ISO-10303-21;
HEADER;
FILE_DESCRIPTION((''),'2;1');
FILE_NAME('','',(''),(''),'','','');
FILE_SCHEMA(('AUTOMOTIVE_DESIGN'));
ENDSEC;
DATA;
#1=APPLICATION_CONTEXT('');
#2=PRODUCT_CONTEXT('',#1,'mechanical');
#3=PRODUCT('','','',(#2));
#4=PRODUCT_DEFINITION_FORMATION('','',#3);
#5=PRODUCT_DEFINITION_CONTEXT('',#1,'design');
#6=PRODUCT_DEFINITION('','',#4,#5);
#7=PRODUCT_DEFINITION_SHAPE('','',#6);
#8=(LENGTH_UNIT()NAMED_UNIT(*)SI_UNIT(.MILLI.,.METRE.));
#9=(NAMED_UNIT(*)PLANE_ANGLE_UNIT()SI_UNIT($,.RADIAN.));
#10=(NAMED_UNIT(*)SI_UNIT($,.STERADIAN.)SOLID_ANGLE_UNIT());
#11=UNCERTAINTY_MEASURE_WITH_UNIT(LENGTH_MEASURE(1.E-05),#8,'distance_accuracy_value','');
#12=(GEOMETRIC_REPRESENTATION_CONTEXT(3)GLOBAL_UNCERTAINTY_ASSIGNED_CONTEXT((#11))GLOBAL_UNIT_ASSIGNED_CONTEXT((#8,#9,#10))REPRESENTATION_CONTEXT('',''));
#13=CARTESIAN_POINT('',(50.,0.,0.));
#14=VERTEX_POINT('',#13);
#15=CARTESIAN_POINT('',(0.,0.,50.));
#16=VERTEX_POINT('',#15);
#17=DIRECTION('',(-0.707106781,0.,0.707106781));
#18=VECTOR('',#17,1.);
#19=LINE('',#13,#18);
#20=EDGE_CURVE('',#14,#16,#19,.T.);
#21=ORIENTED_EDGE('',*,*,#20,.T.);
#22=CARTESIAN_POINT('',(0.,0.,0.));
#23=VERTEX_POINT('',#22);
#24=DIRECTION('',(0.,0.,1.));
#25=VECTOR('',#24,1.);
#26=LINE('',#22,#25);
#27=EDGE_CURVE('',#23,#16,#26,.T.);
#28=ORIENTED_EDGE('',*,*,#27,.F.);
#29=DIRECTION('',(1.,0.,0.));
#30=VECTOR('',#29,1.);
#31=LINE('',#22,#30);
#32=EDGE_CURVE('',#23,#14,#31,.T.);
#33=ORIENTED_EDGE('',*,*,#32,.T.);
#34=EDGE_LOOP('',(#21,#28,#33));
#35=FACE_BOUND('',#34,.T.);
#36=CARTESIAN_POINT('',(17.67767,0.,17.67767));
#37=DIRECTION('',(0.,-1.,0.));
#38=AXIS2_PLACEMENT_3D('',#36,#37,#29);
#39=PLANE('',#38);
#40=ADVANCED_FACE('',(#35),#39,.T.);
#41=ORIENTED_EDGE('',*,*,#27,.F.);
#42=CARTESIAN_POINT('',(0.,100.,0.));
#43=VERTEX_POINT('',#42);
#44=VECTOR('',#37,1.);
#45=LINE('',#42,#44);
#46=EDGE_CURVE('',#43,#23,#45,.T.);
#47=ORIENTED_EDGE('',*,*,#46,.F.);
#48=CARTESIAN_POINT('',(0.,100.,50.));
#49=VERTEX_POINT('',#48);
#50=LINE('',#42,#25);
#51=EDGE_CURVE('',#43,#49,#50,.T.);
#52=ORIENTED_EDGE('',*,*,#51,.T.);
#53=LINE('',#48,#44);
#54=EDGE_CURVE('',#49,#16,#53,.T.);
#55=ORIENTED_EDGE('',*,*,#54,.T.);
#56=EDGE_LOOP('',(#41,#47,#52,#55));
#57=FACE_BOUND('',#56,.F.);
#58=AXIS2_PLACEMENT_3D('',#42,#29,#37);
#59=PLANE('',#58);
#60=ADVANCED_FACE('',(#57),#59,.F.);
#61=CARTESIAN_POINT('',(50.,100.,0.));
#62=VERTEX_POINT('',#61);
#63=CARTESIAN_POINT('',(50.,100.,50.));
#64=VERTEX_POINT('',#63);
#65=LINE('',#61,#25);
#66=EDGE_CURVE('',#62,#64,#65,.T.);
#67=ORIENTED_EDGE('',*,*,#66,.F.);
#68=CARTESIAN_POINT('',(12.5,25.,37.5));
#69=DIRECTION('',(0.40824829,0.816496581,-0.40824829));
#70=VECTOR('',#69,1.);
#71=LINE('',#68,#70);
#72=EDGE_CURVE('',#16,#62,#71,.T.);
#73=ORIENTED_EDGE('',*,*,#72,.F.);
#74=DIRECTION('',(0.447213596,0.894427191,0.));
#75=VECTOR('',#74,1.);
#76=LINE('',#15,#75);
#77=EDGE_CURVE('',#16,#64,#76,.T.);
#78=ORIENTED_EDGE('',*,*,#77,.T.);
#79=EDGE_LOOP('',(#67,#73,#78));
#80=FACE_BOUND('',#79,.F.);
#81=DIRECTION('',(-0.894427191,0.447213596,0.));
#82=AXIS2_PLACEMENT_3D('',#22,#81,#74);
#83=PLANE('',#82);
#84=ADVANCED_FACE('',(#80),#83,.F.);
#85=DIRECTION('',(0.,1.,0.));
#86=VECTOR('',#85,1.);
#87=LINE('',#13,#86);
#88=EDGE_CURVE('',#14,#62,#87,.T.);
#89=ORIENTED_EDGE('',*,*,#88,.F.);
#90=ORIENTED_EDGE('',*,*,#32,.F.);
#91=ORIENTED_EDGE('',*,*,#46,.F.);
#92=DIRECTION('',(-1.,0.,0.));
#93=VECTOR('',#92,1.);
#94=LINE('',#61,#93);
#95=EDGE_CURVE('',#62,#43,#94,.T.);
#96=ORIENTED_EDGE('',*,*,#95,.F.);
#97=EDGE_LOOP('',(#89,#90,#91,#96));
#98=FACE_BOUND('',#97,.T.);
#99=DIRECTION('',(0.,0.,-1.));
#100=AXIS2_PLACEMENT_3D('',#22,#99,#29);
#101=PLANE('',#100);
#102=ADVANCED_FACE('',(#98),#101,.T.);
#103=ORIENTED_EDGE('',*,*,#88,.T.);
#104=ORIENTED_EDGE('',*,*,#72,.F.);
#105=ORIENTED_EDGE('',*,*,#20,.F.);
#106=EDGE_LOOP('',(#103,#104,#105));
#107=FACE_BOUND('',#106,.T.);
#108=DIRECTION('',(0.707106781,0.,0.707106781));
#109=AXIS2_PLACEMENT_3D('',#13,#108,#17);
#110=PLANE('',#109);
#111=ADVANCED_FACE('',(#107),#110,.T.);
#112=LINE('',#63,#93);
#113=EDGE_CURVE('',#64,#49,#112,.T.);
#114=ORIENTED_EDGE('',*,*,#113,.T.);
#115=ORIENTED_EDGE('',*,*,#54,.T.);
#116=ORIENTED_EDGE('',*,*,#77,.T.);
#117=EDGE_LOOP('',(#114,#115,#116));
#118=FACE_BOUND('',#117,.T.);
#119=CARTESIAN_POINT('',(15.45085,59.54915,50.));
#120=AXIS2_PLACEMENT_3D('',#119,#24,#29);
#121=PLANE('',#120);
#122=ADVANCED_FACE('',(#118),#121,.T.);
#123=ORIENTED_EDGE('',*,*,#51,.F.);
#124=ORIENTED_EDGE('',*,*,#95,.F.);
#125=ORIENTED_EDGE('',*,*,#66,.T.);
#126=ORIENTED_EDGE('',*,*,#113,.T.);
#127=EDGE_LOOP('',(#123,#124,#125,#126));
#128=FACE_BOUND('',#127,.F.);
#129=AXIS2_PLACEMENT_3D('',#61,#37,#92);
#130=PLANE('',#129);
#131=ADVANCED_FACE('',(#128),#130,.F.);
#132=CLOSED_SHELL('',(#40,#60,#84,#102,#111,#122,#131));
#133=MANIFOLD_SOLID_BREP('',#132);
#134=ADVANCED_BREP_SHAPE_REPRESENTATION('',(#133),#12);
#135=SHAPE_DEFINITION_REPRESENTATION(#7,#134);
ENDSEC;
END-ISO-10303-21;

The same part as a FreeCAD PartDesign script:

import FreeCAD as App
import Part
import Sketcher
from FreeCAD import Vector
Q = App.Units.Quantity

doc = App.newDocument("Part")
body = doc.addObject("PartDesign::Body", "Body")

sketch1 = body.newObject("Sketcher::SketchObject", "Sketch")
sketch1.AttachmentSupport = (doc.getObject("XY_Plane"), [""])
sketch1.MapMode = "FlatFace"
sketch1.addGeometry([
    Part.LineSegment(Vector(0, 100, 0), Vector(0, 0, 0)),
    Part.LineSegment(Vector(0, 0, 0), Vector(50, 100, 0)),
    Part.LineSegment(Vector(50, 100, 0), Vector(0, 100, 0)),
], False)
sketch1.addConstraint([
    Sketcher.Constraint("Coincident", 0, 2, 1, 1),
    Sketcher.Constraint("Coincident", 1, 2, 2, 1),
    Sketcher.Constraint("Coincident", 2, 2, 0, 1),
    Sketcher.Constraint("Vertical", 0),
    Sketcher.Constraint("Horizontal", 2),
    Sketcher.Constraint("Coincident", 0, 2, -1, 1),
    Sketcher.Constraint("DistanceX", 2, 2, 2, 1, Q("50 mm")),
    Sketcher.Constraint("DistanceY", 0, 2, 0, 1, Q("100 mm")),
])
pad1 = body.newObject("PartDesign::Pad", "Pad")
pad1.Profile = sketch1
pad1.Length = 50

sketch2 = body.newObject("Sketcher::SketchObject", "Sketch001")
sketch2.AttachmentSupport = (doc.getObject("XZ_Plane"), [""])
sketch2.MapMode = "FlatFace"
sketch2.addGeometry([
    Part.LineSegment(Vector(50, 0, 0), Vector(0, 50, 0)),
    Part.LineSegment(Vector(0, 50, 0), Vector(0, 0, 0)),
    Part.LineSegment(Vector(0, 0, 0), Vector(50, 0, 0)),
], False)
sketch2.addConstraint([
    Sketcher.Constraint("Coincident", 0, 2, 1, 1),
    Sketcher.Constraint("Coincident", 1, 2, 2, 1),
    Sketcher.Constraint("Coincident", 2, 2, 0, 1),
    Sketcher.Constraint("Vertical", 1),
    Sketcher.Constraint("Horizontal", 2),
    Sketcher.Constraint("Coincident", 1, 2, -1, 1),
    Sketcher.Constraint("Equal", 2, 1),
    Sketcher.Constraint("DistanceX", 2, 1, 2, 2, Q("50 mm")),
])
pad2 = body.newObject("PartDesign::Pad", "Pad001")
pad2.Profile = sketch2
pad2.Type = "UpToLast"
pad2.Reversed = True

doc.recompute()
